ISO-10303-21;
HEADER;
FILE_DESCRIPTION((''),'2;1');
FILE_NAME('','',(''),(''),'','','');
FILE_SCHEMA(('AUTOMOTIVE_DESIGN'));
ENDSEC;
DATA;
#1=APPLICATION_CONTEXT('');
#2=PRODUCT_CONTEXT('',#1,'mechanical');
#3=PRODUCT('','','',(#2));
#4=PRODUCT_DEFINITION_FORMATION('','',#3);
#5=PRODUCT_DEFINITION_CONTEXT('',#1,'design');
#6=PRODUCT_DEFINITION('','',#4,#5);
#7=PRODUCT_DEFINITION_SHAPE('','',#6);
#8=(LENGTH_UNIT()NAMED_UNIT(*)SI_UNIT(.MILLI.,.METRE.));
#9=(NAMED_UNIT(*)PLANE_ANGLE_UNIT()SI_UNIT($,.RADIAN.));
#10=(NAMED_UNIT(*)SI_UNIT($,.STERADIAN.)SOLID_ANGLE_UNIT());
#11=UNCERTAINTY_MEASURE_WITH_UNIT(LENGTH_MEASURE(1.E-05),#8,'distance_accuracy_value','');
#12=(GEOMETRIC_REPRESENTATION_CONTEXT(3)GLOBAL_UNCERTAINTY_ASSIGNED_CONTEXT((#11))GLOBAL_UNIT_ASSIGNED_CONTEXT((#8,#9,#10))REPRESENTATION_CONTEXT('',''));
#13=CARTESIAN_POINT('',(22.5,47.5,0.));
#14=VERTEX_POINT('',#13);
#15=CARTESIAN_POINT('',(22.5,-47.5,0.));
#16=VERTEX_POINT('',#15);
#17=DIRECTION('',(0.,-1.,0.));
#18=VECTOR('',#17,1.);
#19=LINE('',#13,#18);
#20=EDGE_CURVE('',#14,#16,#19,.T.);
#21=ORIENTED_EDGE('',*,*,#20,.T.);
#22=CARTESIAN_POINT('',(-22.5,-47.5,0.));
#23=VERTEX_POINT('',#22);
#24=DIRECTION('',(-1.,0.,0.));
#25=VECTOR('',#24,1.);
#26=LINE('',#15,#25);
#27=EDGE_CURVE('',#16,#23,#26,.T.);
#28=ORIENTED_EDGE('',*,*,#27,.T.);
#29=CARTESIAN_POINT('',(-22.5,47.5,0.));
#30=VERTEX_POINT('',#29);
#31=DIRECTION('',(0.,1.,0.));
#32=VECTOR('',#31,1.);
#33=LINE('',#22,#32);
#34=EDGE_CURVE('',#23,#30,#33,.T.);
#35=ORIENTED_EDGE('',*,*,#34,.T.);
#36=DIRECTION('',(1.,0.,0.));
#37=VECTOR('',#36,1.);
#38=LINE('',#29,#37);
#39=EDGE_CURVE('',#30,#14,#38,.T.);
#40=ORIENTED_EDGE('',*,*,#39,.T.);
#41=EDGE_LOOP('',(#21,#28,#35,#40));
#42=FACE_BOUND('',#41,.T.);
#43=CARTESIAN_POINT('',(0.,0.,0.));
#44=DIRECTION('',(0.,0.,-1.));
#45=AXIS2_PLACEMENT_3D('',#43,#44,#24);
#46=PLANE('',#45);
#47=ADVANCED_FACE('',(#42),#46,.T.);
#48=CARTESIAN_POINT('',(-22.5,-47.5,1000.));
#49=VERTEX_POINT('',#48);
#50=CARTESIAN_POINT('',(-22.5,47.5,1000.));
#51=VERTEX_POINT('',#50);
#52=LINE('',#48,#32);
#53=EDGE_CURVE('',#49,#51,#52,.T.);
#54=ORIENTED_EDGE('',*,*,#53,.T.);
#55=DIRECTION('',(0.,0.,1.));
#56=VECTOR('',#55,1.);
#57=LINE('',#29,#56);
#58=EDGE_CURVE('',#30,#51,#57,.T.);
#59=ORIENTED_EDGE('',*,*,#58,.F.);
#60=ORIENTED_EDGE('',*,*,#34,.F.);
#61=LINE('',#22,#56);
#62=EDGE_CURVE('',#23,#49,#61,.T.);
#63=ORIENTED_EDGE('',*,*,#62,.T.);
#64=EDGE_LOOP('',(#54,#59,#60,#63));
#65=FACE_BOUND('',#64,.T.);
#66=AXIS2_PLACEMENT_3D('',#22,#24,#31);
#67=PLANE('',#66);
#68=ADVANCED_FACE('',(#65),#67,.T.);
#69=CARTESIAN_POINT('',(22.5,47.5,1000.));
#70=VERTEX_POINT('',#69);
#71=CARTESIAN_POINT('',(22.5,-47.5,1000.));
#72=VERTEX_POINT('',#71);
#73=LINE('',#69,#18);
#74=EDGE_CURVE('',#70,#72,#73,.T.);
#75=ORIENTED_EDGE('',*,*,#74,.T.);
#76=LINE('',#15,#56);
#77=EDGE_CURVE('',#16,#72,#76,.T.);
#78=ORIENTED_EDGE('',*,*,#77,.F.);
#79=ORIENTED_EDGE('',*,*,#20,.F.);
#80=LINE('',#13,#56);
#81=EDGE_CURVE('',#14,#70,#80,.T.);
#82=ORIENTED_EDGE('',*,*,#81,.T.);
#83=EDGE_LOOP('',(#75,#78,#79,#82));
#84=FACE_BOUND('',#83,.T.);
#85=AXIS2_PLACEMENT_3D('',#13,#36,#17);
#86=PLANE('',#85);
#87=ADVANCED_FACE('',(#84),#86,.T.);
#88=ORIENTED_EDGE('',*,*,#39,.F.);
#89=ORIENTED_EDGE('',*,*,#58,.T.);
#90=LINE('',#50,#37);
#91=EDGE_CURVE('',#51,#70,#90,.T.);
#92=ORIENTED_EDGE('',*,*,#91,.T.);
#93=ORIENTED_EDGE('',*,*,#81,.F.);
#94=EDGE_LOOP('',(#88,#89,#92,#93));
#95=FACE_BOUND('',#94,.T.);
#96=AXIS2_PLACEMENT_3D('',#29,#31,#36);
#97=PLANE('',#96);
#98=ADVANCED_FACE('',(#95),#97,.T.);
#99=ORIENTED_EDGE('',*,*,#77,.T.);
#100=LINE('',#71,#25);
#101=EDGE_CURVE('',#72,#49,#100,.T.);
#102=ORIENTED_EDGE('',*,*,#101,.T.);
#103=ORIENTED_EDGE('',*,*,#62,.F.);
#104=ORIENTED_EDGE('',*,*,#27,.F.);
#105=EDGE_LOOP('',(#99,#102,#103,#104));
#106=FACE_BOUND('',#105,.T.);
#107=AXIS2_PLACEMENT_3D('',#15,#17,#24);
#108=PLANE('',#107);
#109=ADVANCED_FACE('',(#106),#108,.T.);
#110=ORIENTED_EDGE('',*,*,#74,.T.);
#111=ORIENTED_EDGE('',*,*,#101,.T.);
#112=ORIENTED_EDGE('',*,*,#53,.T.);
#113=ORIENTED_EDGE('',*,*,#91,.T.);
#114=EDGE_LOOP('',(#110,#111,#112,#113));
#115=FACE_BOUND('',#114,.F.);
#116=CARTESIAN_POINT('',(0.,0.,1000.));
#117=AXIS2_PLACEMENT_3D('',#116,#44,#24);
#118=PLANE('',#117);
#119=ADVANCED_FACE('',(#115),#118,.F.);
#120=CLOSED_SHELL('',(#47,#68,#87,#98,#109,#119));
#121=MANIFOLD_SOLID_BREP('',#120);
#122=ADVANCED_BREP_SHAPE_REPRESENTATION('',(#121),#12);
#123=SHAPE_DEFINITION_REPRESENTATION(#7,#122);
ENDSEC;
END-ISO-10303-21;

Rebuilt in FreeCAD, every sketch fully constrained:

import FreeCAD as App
import Part
import Sketcher
from FreeCAD import Vector

doc = App.newDocument("Part")
body = doc.addObject("PartDesign::Body", "Body")

# Sketch on XY plane
sketch1 = body.newObject("Sketcher::SketchObject", "Sketch")
sketch1.AttachmentSupport = (doc.getObject("XY_Plane"), [""])
sketch1.MapMode = "FlatFace"
sketch1.addGeometry(Part.LineSegment(Vector(22, 48, 0), Vector(22, -48, 0)), False)
sketch1.addGeometry(Part.LineSegment(Vector(22, -48, 0), Vector(-22, -48, 0)), False)
sketch1.addGeometry(Part.LineSegment(Vector(-22, -48, 0), Vector(-22, 48, 0)), False)
sketch1.addGeometry(Part.LineSegment(Vector(-22, 48, 0), Vector(22, 48, 0)), False)
sketch1.addConstraint(Sketcher.Constraint("Coincident", 0, 2, 1, 1))
sketch1.addConstraint(Sketcher.Constraint("Coincident", 1, 2, 2, 1))
sketch1.addConstraint(Sketcher.Constraint("Coincident", 2, 2, 3, 1))
sketch1.addConstraint(Sketcher.Constraint("Coincident", 3, 2, 0, 1))
sketch1.addConstraint(Sketcher.Constraint("Vertical", 0))
sketch1.addConstraint(Sketcher.Constraint("Horizontal", 1))
sketch1.addConstraint(Sketcher.Constraint("Vertical", 2))
sketch1.addConstraint(Sketcher.Constraint("Horizontal", 3))
sketch1.addConstraint(Sketcher.Constraint("Symmetric", 0, 2, 2, 2, -1, 1))
sketch1.addConstraint(Sketcher.Constraint("DistanceX", 1, 2, 1, 1, 45.0))
sketch1.addConstraint(Sketcher.Constraint("DistanceY", 0, 2, 0, 1, 95.0))
pad1 = body.newObject("PartDesign::Pad", "Pad")
pad1.Profile = sketch1
pad1.Length = 1000

doc.recompute()
